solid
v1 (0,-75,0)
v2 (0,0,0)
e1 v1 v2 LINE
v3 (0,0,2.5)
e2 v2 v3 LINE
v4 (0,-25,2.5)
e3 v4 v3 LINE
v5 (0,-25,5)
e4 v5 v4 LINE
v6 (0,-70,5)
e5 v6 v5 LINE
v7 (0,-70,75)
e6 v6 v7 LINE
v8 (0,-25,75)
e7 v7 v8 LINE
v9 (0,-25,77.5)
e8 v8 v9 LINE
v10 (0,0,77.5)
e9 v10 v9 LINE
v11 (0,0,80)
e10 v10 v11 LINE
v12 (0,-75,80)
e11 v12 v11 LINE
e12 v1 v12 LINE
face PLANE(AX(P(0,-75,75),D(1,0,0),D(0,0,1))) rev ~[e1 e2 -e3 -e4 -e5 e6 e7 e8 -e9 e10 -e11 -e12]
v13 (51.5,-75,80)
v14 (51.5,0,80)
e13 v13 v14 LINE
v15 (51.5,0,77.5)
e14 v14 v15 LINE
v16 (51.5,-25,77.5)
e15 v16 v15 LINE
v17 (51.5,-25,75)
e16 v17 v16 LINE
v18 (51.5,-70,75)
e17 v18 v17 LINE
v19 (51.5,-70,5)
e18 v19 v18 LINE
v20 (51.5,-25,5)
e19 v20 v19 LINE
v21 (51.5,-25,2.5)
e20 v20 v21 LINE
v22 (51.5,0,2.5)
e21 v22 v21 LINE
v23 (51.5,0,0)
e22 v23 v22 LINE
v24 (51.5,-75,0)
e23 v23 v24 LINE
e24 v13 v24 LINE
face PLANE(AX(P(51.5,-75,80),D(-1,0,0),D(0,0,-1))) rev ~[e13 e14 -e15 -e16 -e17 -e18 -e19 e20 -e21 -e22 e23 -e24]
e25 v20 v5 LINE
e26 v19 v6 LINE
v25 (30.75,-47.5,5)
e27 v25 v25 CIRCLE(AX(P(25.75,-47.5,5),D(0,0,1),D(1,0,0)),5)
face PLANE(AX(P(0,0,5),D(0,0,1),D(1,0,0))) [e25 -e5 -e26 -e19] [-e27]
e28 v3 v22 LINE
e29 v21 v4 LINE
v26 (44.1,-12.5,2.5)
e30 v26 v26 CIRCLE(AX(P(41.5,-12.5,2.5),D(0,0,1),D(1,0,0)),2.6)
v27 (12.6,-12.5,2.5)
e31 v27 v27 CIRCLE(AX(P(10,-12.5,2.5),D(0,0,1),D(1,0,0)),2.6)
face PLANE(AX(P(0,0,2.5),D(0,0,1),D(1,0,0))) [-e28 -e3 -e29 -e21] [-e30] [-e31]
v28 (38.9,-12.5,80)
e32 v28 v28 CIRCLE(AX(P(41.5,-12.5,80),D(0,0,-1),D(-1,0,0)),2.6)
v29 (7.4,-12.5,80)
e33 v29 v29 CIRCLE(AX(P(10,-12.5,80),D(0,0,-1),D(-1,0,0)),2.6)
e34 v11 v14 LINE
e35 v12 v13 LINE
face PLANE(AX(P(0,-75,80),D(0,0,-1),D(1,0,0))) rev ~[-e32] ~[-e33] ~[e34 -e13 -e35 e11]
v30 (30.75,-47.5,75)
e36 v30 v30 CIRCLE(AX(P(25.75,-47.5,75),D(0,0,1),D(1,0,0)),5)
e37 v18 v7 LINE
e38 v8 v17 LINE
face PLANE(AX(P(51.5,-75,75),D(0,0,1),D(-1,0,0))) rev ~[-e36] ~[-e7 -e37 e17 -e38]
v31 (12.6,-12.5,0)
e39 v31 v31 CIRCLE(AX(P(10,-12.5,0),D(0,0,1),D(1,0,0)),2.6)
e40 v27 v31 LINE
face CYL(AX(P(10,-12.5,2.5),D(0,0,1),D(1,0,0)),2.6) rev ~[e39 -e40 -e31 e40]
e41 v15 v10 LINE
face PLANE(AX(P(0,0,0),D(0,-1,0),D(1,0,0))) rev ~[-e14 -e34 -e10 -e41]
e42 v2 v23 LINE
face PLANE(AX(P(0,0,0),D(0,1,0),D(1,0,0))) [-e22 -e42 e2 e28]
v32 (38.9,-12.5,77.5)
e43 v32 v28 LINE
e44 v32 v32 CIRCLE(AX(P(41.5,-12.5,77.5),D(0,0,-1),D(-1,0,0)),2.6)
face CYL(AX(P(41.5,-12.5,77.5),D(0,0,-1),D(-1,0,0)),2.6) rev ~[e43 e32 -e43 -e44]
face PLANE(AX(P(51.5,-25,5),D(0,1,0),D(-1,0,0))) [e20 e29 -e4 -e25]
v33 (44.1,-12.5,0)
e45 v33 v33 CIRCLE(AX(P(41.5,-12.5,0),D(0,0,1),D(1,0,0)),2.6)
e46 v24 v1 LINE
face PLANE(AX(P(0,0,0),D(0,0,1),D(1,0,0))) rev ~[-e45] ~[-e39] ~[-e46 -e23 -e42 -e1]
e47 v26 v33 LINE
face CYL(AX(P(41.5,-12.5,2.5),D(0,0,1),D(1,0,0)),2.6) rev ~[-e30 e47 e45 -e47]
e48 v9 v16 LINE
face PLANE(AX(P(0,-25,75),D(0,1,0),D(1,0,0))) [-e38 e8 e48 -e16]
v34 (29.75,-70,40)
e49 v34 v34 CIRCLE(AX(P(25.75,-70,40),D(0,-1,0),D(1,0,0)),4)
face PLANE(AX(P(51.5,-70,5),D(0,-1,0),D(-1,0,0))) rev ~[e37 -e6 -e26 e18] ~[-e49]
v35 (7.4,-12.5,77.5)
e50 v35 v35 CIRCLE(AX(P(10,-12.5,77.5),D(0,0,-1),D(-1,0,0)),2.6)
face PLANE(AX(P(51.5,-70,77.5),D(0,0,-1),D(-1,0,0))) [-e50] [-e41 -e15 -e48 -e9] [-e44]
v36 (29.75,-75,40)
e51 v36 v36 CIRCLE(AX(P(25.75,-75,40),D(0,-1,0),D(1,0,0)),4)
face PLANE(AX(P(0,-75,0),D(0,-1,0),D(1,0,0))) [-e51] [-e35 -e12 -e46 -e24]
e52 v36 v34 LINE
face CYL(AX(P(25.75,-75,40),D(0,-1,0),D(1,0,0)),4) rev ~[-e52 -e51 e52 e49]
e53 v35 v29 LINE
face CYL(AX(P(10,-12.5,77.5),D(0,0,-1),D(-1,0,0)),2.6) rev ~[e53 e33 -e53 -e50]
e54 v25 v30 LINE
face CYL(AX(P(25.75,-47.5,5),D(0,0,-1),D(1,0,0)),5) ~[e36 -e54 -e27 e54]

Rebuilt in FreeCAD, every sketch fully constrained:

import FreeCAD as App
import Part
import Sketcher

V = App.Vector


def add_polygon(sketch, points):
    """Adds a closed chain of lines whose ends are joined by coincident constraints."""
    first, n = sketch.GeometryCount, len(points)
    for a, b in zip(points, points[1:] + points[:1]):
        sketch.addGeometry(Part.LineSegment(App.Vector(*a, 0), App.Vector(*b, 0)), False)
    for i in range(n):
        sketch.addConstraint(Sketcher.Constraint("Coincident", first + i, 2, first + (i + 1) % n, 1))

doc = App.newDocument("Part")
body = doc.addObject("PartDesign::Body", "Body")

# Sketch on XY plane
sketch1 = body.newObject("Sketcher::SketchObject", "Sketch")
sketch1.AttachmentSupport = (doc.getObject("XY_Plane"), [""])
sketch1.MapMode = "FlatFace"
add_polygon(sketch1, [(52, 0), (0, 0), (0, -75), (52, -75)])  # lines 0-3
sketch1.addConstraint([
    Sketcher.Constraint("Horizontal", 0),
    Sketcher.Constraint("Vertical", 1),
    Sketcher.Constraint("Horizontal", 2),
    Sketcher.Constraint("Vertical", 3),
    Sketcher.Constraint("Coincident", 0, 2, -1, 1),
    Sketcher.Constraint("DistanceY", 1, 2, 1, 1, 75.0),
    Sketcher.Constraint("DistanceX", 0, 2, 0, 1, 51.5),
])
pad1 = body.newObject("PartDesign::Pad", "Pad")
pad1.Profile = sketch1
pad1.Length = 5

# Sketch on XY plane
sketch2 = body.newObject("Sketcher::SketchObject", "Sketch001")
sketch2.AttachmentSupport = (doc.getObject("XY_Plane"), [""])
sketch2.MapMode = "FlatFace"
sketch2.AttachmentOffset = App.Placement(V(0, 0, 5), App.Rotation())
add_polygon(sketch2, [(52, 0), (0, 0), (0, -25), (52, -25)])  # lines 0-3
sketch2.addConstraint([
    Sketcher.Constraint("Horizontal", 0),
    Sketcher.Constraint("Vertical", 1),
    Sketcher.Constraint("Horizontal", 2),
    Sketcher.Constraint("Vertical", 3),
    Sketcher.Constraint("Coincident", 0, 2, -1, 1),
    Sketcher.Constraint("DistanceY", 1, 2, 1, 1, 25.0),
    Sketcher.Constraint("DistanceX", 0, 2, 0, 1, 51.5),
])
pocket1 = body.newObject("PartDesign::Pocket", "Pocket")
pocket1.Profile = sketch2
pocket1.Length = 2.5

# Sketch on XY plane
sketch3 = body.newObject("Sketcher::SketchObject", "Sketch002")
sketch3.AttachmentSupport = (doc.getObject("XY_Plane"), [""])
sketch3.MapMode = "FlatFace"
sketch3.AttachmentOffset = App.Placement(V(0, 0, 2.5), App.Rotation())
sketch3.addGeometry([
    Part.Circle(V(10, -12.5, 0), V(0, 0, 1), 2.6),
    Part.Circle(V(41.5, -12.5, 0), V(0, 0, 1), 2.6),
], False)
sketch3.addConstraint([
    Sketcher.Constraint("Equal", 0, 1),
    Sketcher.Constraint("Horizontal", 0, 3, 1, 3),
    Sketcher.Constraint("Diameter", 0, 5.2),
    Sketcher.Constraint("DistanceX", -1, 1, 0, 3, 10.0),
    Sketcher.Constraint("DistanceY", 0, 3, -1, 1, 12.5),
    Sketcher.Constraint("DistanceX", -1, 1, 1, 3, 41.5),
])
pocket2 = body.newObject("PartDesign::Pocket", "Pocket001")
pocket2.Profile = sketch3
pocket2.Length = 2.5

# Sketch on XY plane
sketch4 = body.newObject("Sketcher::SketchObject", "Sketch003")
sketch4.AttachmentSupport = (doc.getObject("XY_Plane"), [""])
sketch4.MapMode = "FlatFace"
sketch4.AttachmentOffset = App.Placement(V(0, 0, 5), App.Rotation())
add_polygon(sketch4, [(0, -70), (0, -75), (52, -75), (52, -70)])  # lines 0-3
sketch4.addConstraint([
    Sketcher.Constraint("Vertical", 0),
    Sketcher.Constraint("Horizontal", 1),
    Sketcher.Constraint("Vertical", 2),
    Sketcher.Constraint("Horizontal", 3),
    Sketcher.Constraint("PointOnObject", 0, 2, -2),
    Sketcher.Constraint("DistanceY", 0, 2, 0, 1, 5.0),
    Sketcher.Constraint("DistanceX", 1, 1, 1, 2, 51.5),
    Sketcher.Constraint("DistanceY", 0, 2, -1, 1, 75.0),
])
pad2 = body.newObject("PartDesign::Pad", "Pad001")
pad2.Profile = sketch4
pad2.Length = 70

# Sketch on XZ plane
sketch5 = body.newObject("Sketcher::SketchObject", "Sketch004")
sketch5.AttachmentSupport = (doc.getObject("XZ_Plane"), [""])
sketch5.MapMode = "FlatFace"
sketch5.AttachmentOffset = App.Placement(V(0, 0, 75), App.Rotation())
add_polygon(sketch5, [(0, 75), (52, 75), (52, 80), (0, 80)])  # lines 0-3
sketch5.addConstraint([
    Sketcher.Constraint("Horizontal", 0),
    Sketcher.Constraint("Vertical", 1),
    Sketcher.Constraint("Horizontal", 2),
    Sketcher.Constraint("Vertical", 3),
    Sketcher.Constraint("PointOnObject", 2, 2, -2),
    Sketcher.Constraint("DistanceY", 1, 1, 1, 2, 5.0),
    Sketcher.Constraint("DistanceX", 0, 1, 0, 2, 51.5),
    Sketcher.Constraint("DistanceY", -1, 1, 0, 2, 75.0),
])
pad3 = body.newObject("PartDesign::Pad", "Pad002")
pad3.Profile = sketch5
pad3.Length = 75
pad3.Reversed = True

# Sketch on XY plane
sketch6 = body.newObject("Sketcher::SketchObject", "Sketch005")
sketch6.AttachmentSupport = (doc.getObject("XY_Plane"), [""])
sketch6.MapMode = "FlatFace"
sketch6.AttachmentOffset = App.Placement(V(0, 0, 75), App.Rotation())
add_polygon(sketch6, [(0, 0), (52, 0), (52, -25), (0, -25)])  # lines 0-3
sketch6.addConstraint([
    Sketcher.Constraint("Horizontal", 0),
    Sketcher.Constraint("Vertical", 1),
    Sketcher.Constraint("Horizontal", 2),
    Sketcher.Constraint("Vertical", 3),
    Sketcher.Constraint("Coincident", 3, 2, -1, 1),
    Sketcher.Constraint("DistanceY", 1, 2, 1, 1, 25.0),
    Sketcher.Constraint("DistanceX", 0, 1, 0, 2, 51.5),
])
pocket3 = body.newObject("PartDesign::Pocket", "Pocket002")
pocket3.Profile = sketch6
pocket3.Length = 2.5
pocket3.Reversed = True

# Sketch on XY plane
sketch7 = body.newObject("Sketcher::SketchObject", "Sketch006")
sketch7.AttachmentSupport = (doc.getObject("XY_Plane"), [""])
sketch7.MapMode = "FlatFace"
sketch7.AttachmentOffset = App.Placement(V(0, 0, 77.5), App.Rotation())
sketch7.addGeometry([
    Part.Circle(V(41.5, -12.5, 0), V(0, 0, 1), 2.6),
    Part.Circle(V(10, -12.5, 0), V(0, 0, 1), 2.6),
], False)
sketch7.addConstraint([
    Sketcher.Constraint("Equal", 0, 1),
    Sketcher.Constraint("Horizontal", 0, 3, 1, 3),
    Sketcher.Constraint("Diameter", 0, 5.2),
    Sketcher.Constraint("DistanceX", -1, 1, 1, 3, 10.0),
    Sketcher.Constraint("DistanceY", 0, 3, -1, 1, 12.5),
    Sketcher.Constraint("DistanceX", -1, 1, 0, 3, 41.5),
])
pocket4 = body.newObject("PartDesign::Pocket", "Pocket003")
pocket4.Profile = sketch7
pocket4.Length = 2.5
pocket4.Reversed = True

# Sketch on XZ plane
sketch8 = body.newObject("Sketcher::SketchObject", "Sketch007")
sketch8.AttachmentSupport = (doc.getObject("XZ_Plane"), [""])
sketch8.MapMode = "FlatFace"
sketch8.AttachmentOffset = App.Placement(V(0, 0, 75), App.Rotation())
sketch8.addGeometry(Part.Circle(V(25.8, 40, 0), V(0, 0, 1), 4), False)
sketch8.addConstraint([
    Sketcher.Constraint("Diameter", 0, 8.0),
    Sketcher.Constraint("DistanceY", -1, 1, 0, 3, 40.0),
    Sketcher.Constraint("DistanceX", -1, 1, 0, 3, 25.75),
])
pocket5 = body.newObject("PartDesign::Pocket", "Pocket004")
pocket5.Profile = sketch8
pocket5.Length = 5

# Sketch on XY plane
sketch9 = body.newObject("Sketcher::SketchObject", "Sketch008")
sketch9.AttachmentSupport = (doc.getObject("XY_Plane"), [""])
sketch9.MapMode = "FlatFace"
sketch9.AttachmentOffset = App.Placement(V(0, 0, 5), App.Rotation())
sketch9.addGeometry(Part.Circle(V(26, -48, 0), V(0, 0, 1), 5), False)
sketch9.addConstraint([
    Sketcher.Constraint("Diameter", 0, 10.0),
    Sketcher.Constraint("DistanceY", 0, 3, -1, 1, 47.5),
    Sketcher.Constraint("DistanceX", -1, 1, 0, 3, 25.75),
])
pad4 = body.newObject("PartDesign::Pad", "Pad003")
pad4.Profile = sketch9
pad4.Length = 70

doc.recompute()
